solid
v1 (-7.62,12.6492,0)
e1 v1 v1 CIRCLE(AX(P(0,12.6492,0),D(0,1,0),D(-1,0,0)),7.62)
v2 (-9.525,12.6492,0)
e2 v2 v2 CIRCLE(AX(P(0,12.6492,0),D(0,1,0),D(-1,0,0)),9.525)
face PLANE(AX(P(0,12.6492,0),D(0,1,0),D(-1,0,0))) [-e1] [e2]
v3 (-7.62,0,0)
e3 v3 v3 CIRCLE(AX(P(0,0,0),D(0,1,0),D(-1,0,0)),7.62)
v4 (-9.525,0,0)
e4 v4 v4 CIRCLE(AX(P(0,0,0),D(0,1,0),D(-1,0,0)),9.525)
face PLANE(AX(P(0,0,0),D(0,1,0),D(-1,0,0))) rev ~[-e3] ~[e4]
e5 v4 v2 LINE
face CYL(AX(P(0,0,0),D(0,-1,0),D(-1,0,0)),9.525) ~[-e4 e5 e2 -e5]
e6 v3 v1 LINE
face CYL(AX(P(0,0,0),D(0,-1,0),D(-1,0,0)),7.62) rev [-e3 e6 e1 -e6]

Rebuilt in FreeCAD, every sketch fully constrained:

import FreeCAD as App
import Part
import Sketcher
from FreeCAD import Vector
Q = App.Units.Quantity

doc = App.newDocument("Part")
params = doc.addObject("Spreadsheet::Sheet", "Params")
for row, (alias, value) in enumerate([
    ("sketch1_diameter", "0.6 in"),
    ("sketch1_diameter2", "0.75 in"),
    ("pad1_length", "0.498 in"),
], start=1):
    params.set(f"A{row}", alias)
    params.set(f"B{row}", "=" + value)
    params.setAlias(f"B{row}", alias)

body = doc.addObject("PartDesign::Body", "Body")

sketch1 = body.newObject("Sketcher::SketchObject", "Sketch")
sketch1.AttachmentSupport = (doc.getObject("XZ_Plane"), [""])
sketch1.MapMode = "FlatFace"
sketch1.addGeometry(Part.Circle(Vector(0, 0, 0), Vector(0, 0, 1), 10), False)
sketch1.addGeometry(Part.Circle(Vector(0, 0, 0), Vector(0, 0, 1), 8), False)
sketch1.addConstraint(Sketcher.Constraint("Coincident", 0, 3, -1, 1))
sketch1.addConstraint(Sketcher.Constraint("Coincident", 1, 3, -1, 1))
sketch1.addConstraint(Sketcher.Constraint("Diameter", 1, Q("0.6 in")))
sketch1.addConstraint(Sketcher.Constraint("Diameter", 0, Q("0.75 in")))
sketch1.setExpression("Constraints[2]", "Params.sketch1_diameter")
sketch1.setExpression("Constraints[3]", "Params.sketch1_diameter2")
pad1 = body.newObject("PartDesign::Pad", "Pad")
pad1.Profile = sketch1
pad1.setExpression("Length", "Params.pad1_length")
pad1.Reversed = True

doc.recompute()
